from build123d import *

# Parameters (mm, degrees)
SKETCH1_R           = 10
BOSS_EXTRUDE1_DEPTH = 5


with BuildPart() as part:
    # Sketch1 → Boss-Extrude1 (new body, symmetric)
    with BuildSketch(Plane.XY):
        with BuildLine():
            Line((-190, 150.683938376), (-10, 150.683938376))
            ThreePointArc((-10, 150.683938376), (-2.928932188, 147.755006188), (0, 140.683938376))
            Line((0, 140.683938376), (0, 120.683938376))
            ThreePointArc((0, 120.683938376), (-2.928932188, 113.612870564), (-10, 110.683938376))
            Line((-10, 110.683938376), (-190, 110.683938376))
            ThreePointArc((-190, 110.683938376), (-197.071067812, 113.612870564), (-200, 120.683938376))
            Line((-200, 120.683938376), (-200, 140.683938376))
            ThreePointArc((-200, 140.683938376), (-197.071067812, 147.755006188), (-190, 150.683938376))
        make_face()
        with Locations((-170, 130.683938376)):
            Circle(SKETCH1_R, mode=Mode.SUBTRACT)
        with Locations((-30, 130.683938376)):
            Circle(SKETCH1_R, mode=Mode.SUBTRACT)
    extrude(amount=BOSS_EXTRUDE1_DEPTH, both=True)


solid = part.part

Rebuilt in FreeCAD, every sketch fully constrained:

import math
import FreeCAD as App
import Part
import Sketcher

V = App.Vector
Q = App.Units.Quantity

doc = App.newDocument("Part")
params = doc.addObject("Spreadsheet::Sheet", "Params")
for row, (alias, value) in enumerate([
    ("sketch1_diameter", "20 mm"),
    ("sketch1_width", "180 mm"),
    ("sketch1_height", "20 mm"),
    ("pad1_length", "10 mm"),
], start=1):
    params.set(f"A{row}", alias)
    params.set(f"B{row}", "=" + value)
    params.setAlias(f"B{row}", alias)

body = doc.addObject("PartDesign::Body", "Body")

sketch1 = body.newObject("Sketcher::SketchObject", "Sketch")
sketch1.AttachmentSupport = (doc.getObject("XY_Plane"), [""])
sketch1.MapMode = "FlatFace"
sketch1.addGeometry([
    Part.LineSegment(V(-10, 150.683938, 0), V(-190, 150.683938, 0)),
    Part.ArcOfCircle(Part.Circle(V(-190, 140.683938, 0), V(0, 0, 1), 10), math.radians(90), math.radians(180)),
    Part.LineSegment(V(-200, 140.683938, 0), V(-200, 120.683938, 0)),
    Part.ArcOfCircle(Part.Circle(V(-190, 120.683938, 0), V(0, 0, 1), 10), math.radians(180), math.radians(270)),
    Part.LineSegment(V(-190, 110.683938, 0), V(-10, 110.683938, 0)),
    Part.ArcOfCircle(Part.Circle(V(-10, 120.683938, 0), V(0, 0, 1), 10), math.radians(-90), math.radians(0)),
    Part.LineSegment(V(0, 120.683938, 0), V(0, 140.683938, 0)),
    Part.ArcOfCircle(Part.Circle(V(-10, 140.683938, 0), V(0, 0, 1), 10), math.radians(0), math.radians(90)),
    Part.Circle(V(-30, 130.683938, 0), V(0, 0, 1), 10),
    Part.Circle(V(-170, 130.683938, 0), V(0, 0, 1), 10),
], False)
sketch1.addConstraint([
    Sketcher.Constraint("Tangent", 0, 2, 1, 1),
    Sketcher.Constraint("Tangent", 1, 2, 2, 1),
    Sketcher.Constraint("Tangent", 2, 2, 3, 1),
    Sketcher.Constraint("Tangent", 3, 2, 4, 1),
    Sketcher.Constraint("Tangent", 4, 2, 5, 1),
    Sketcher.Constraint("Tangent", 5, 2, 6, 1),
    Sketcher.Constraint("Tangent", 6, 2, 7, 1),
    Sketcher.Constraint("Tangent", 7, 2, 0, 1),
    Sketcher.Constraint("Horizontal", 0),
    Sketcher.Constraint("Vertical", 2),
    Sketcher.Constraint("Horizontal", 4),
    Sketcher.Constraint("Vertical", 6),
    Sketcher.Constraint("Equal", 1, 3),
    Sketcher.Constraint("Equal", 3, 5),
    Sketcher.Constraint("Equal", 5, 7),
    Sketcher.Constraint("Equal", 7, 8),
    Sketcher.Constraint("Equal", 8, 9),
    Sketcher.Constraint("PointOnObject", 5, 2, -2),
    Sketcher.Constraint("Horizontal", 8, 3, 9, 3),
    Sketcher.Constraint("Diameter", 8, Q("20 mm")),
    Sketcher.Constraint("DistanceX", 0, 2, 0, 1, Q("180 mm")),
    Sketcher.Constraint("DistanceY", 2, 2, 2, 1, Q("20 mm")),
    Sketcher.Constraint("DistanceX", 8, 3, -1, 1, Q("30 mm")),
    Sketcher.Constraint("DistanceX", 9, 3, -1, 1, Q("170 mm")),
    Sketcher.Constraint("DistanceY", 5, 3, 8, 3, Q("10 mm")),
    Sketcher.Constraint("DistanceY", -1, 1, 1, 3, Q("140.683938 mm")),
])
sketch1.setExpression("Constraints[19]", "Params.sketch1_diameter")
sketch1.setExpression("Constraints[20]", "Params.sketch1_width")
sketch1.setExpression("Constraints[21]", "Params.sketch1_height")
pad1 = body.newObject("PartDesign::Pad", "Pad")
pad1.Profile = sketch1
pad1.setExpression("Length", "Params.pad1_length")
pad1.Midplane = True

doc.recompute()
